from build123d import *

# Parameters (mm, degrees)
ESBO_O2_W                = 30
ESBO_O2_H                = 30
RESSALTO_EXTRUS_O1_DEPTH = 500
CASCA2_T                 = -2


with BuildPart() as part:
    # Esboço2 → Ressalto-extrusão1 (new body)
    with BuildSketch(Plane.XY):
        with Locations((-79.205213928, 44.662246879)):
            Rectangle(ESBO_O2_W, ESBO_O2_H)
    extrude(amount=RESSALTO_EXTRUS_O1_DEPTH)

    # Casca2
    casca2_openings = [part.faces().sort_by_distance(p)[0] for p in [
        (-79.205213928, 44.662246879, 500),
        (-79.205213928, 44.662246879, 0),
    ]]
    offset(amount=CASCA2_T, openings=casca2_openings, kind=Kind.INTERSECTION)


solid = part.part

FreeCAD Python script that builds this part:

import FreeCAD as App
import Part
import Sketcher
from FreeCAD import Vector
Q = App.Units.Quantity


def faces_at(feature, points):
    """Names of the faces that lie closest to the given points."""
    faces = feature.Shape.Faces
    near = lambda p: min(range(len(faces)), key=lambda i: faces[i].distToShape(Part.Vertex(*p))[0])
    return sorted({f"Face{near(p) + 1}" for p in points})


def add_polygon(sketch, points):
    """Adds a closed chain of lines whose ends are joined by coincident constraints."""
    first, n = sketch.GeometryCount, len(points)
    for a, b in zip(points, points[1:] + points[:1]):
        sketch.addGeometry(Part.LineSegment(App.Vector(*a, 0), App.Vector(*b, 0)), False)
    for i in range(n):
        sketch.addConstraint(Sketcher.Constraint("Coincident", first + i, 2, first + (i + 1) % n, 1))

doc = App.newDocument("Part")
params = doc.addObject("Spreadsheet::Sheet", "Params")
for row, (alias, value) in enumerate([
    ("sketch1_width", "30 mm"),
    ("pad1_length", "500 mm"),
    ("thickness_wall", "2 mm"),
], start=1):
    params.set(f"A{row}", alias)
    params.set(f"B{row}", "=" + value)
    params.setAlias(f"B{row}", alias)

body = doc.addObject("PartDesign::Body", "Body")

# Sketch on XY plane
sketch1 = body.newObject("Sketcher::SketchObject", "Sketch")
sketch1.AttachmentSupport = (doc.getObject("XY_Plane"), [""])
sketch1.MapMode = "FlatFace"
add_polygon(sketch1, [(-94, 60), (-94, 30), (-64, 30), (-64, 60)])  # lines 0-3
sketch1.addConstraint([
    Sketcher.Constraint("Vertical", 0),
    Sketcher.Constraint("Horizontal", 1),
    Sketcher.Constraint("Vertical", 2),
    Sketcher.Constraint("Horizontal", 3),
    Sketcher.Constraint("Equal", 3, 0),
    Sketcher.Constraint("DistanceX", 1, 1, 1, 2, Q("30 mm")),
    Sketcher.Constraint("DistanceX", 0, 2, -1, 1, Q("94.205214 mm")),
    Sketcher.Constraint("DistanceY", -1, 1, 0, 2, Q("29.662247 mm")),
])
sketch1.setExpression("Constraints[9]", "Params.sketch1_width")
pad1 = body.newObject("PartDesign::Pad", "Pad")
pad1.Profile = sketch1
pad1.setExpression("Length", "Params.pad1_length")
doc.recompute()

thickness = body.newObject("PartDesign::Thickness", "Thickness")
thickness.Base = (pad1, faces_at(pad1, [(-79.205, 44.662, 500), (-79.205, 44.662, 0)]))
thickness.setExpression("Value", "Params.thickness_wall")
thickness.Reversed = True
thickness.Join = "Intersection"

doc.recompute()
